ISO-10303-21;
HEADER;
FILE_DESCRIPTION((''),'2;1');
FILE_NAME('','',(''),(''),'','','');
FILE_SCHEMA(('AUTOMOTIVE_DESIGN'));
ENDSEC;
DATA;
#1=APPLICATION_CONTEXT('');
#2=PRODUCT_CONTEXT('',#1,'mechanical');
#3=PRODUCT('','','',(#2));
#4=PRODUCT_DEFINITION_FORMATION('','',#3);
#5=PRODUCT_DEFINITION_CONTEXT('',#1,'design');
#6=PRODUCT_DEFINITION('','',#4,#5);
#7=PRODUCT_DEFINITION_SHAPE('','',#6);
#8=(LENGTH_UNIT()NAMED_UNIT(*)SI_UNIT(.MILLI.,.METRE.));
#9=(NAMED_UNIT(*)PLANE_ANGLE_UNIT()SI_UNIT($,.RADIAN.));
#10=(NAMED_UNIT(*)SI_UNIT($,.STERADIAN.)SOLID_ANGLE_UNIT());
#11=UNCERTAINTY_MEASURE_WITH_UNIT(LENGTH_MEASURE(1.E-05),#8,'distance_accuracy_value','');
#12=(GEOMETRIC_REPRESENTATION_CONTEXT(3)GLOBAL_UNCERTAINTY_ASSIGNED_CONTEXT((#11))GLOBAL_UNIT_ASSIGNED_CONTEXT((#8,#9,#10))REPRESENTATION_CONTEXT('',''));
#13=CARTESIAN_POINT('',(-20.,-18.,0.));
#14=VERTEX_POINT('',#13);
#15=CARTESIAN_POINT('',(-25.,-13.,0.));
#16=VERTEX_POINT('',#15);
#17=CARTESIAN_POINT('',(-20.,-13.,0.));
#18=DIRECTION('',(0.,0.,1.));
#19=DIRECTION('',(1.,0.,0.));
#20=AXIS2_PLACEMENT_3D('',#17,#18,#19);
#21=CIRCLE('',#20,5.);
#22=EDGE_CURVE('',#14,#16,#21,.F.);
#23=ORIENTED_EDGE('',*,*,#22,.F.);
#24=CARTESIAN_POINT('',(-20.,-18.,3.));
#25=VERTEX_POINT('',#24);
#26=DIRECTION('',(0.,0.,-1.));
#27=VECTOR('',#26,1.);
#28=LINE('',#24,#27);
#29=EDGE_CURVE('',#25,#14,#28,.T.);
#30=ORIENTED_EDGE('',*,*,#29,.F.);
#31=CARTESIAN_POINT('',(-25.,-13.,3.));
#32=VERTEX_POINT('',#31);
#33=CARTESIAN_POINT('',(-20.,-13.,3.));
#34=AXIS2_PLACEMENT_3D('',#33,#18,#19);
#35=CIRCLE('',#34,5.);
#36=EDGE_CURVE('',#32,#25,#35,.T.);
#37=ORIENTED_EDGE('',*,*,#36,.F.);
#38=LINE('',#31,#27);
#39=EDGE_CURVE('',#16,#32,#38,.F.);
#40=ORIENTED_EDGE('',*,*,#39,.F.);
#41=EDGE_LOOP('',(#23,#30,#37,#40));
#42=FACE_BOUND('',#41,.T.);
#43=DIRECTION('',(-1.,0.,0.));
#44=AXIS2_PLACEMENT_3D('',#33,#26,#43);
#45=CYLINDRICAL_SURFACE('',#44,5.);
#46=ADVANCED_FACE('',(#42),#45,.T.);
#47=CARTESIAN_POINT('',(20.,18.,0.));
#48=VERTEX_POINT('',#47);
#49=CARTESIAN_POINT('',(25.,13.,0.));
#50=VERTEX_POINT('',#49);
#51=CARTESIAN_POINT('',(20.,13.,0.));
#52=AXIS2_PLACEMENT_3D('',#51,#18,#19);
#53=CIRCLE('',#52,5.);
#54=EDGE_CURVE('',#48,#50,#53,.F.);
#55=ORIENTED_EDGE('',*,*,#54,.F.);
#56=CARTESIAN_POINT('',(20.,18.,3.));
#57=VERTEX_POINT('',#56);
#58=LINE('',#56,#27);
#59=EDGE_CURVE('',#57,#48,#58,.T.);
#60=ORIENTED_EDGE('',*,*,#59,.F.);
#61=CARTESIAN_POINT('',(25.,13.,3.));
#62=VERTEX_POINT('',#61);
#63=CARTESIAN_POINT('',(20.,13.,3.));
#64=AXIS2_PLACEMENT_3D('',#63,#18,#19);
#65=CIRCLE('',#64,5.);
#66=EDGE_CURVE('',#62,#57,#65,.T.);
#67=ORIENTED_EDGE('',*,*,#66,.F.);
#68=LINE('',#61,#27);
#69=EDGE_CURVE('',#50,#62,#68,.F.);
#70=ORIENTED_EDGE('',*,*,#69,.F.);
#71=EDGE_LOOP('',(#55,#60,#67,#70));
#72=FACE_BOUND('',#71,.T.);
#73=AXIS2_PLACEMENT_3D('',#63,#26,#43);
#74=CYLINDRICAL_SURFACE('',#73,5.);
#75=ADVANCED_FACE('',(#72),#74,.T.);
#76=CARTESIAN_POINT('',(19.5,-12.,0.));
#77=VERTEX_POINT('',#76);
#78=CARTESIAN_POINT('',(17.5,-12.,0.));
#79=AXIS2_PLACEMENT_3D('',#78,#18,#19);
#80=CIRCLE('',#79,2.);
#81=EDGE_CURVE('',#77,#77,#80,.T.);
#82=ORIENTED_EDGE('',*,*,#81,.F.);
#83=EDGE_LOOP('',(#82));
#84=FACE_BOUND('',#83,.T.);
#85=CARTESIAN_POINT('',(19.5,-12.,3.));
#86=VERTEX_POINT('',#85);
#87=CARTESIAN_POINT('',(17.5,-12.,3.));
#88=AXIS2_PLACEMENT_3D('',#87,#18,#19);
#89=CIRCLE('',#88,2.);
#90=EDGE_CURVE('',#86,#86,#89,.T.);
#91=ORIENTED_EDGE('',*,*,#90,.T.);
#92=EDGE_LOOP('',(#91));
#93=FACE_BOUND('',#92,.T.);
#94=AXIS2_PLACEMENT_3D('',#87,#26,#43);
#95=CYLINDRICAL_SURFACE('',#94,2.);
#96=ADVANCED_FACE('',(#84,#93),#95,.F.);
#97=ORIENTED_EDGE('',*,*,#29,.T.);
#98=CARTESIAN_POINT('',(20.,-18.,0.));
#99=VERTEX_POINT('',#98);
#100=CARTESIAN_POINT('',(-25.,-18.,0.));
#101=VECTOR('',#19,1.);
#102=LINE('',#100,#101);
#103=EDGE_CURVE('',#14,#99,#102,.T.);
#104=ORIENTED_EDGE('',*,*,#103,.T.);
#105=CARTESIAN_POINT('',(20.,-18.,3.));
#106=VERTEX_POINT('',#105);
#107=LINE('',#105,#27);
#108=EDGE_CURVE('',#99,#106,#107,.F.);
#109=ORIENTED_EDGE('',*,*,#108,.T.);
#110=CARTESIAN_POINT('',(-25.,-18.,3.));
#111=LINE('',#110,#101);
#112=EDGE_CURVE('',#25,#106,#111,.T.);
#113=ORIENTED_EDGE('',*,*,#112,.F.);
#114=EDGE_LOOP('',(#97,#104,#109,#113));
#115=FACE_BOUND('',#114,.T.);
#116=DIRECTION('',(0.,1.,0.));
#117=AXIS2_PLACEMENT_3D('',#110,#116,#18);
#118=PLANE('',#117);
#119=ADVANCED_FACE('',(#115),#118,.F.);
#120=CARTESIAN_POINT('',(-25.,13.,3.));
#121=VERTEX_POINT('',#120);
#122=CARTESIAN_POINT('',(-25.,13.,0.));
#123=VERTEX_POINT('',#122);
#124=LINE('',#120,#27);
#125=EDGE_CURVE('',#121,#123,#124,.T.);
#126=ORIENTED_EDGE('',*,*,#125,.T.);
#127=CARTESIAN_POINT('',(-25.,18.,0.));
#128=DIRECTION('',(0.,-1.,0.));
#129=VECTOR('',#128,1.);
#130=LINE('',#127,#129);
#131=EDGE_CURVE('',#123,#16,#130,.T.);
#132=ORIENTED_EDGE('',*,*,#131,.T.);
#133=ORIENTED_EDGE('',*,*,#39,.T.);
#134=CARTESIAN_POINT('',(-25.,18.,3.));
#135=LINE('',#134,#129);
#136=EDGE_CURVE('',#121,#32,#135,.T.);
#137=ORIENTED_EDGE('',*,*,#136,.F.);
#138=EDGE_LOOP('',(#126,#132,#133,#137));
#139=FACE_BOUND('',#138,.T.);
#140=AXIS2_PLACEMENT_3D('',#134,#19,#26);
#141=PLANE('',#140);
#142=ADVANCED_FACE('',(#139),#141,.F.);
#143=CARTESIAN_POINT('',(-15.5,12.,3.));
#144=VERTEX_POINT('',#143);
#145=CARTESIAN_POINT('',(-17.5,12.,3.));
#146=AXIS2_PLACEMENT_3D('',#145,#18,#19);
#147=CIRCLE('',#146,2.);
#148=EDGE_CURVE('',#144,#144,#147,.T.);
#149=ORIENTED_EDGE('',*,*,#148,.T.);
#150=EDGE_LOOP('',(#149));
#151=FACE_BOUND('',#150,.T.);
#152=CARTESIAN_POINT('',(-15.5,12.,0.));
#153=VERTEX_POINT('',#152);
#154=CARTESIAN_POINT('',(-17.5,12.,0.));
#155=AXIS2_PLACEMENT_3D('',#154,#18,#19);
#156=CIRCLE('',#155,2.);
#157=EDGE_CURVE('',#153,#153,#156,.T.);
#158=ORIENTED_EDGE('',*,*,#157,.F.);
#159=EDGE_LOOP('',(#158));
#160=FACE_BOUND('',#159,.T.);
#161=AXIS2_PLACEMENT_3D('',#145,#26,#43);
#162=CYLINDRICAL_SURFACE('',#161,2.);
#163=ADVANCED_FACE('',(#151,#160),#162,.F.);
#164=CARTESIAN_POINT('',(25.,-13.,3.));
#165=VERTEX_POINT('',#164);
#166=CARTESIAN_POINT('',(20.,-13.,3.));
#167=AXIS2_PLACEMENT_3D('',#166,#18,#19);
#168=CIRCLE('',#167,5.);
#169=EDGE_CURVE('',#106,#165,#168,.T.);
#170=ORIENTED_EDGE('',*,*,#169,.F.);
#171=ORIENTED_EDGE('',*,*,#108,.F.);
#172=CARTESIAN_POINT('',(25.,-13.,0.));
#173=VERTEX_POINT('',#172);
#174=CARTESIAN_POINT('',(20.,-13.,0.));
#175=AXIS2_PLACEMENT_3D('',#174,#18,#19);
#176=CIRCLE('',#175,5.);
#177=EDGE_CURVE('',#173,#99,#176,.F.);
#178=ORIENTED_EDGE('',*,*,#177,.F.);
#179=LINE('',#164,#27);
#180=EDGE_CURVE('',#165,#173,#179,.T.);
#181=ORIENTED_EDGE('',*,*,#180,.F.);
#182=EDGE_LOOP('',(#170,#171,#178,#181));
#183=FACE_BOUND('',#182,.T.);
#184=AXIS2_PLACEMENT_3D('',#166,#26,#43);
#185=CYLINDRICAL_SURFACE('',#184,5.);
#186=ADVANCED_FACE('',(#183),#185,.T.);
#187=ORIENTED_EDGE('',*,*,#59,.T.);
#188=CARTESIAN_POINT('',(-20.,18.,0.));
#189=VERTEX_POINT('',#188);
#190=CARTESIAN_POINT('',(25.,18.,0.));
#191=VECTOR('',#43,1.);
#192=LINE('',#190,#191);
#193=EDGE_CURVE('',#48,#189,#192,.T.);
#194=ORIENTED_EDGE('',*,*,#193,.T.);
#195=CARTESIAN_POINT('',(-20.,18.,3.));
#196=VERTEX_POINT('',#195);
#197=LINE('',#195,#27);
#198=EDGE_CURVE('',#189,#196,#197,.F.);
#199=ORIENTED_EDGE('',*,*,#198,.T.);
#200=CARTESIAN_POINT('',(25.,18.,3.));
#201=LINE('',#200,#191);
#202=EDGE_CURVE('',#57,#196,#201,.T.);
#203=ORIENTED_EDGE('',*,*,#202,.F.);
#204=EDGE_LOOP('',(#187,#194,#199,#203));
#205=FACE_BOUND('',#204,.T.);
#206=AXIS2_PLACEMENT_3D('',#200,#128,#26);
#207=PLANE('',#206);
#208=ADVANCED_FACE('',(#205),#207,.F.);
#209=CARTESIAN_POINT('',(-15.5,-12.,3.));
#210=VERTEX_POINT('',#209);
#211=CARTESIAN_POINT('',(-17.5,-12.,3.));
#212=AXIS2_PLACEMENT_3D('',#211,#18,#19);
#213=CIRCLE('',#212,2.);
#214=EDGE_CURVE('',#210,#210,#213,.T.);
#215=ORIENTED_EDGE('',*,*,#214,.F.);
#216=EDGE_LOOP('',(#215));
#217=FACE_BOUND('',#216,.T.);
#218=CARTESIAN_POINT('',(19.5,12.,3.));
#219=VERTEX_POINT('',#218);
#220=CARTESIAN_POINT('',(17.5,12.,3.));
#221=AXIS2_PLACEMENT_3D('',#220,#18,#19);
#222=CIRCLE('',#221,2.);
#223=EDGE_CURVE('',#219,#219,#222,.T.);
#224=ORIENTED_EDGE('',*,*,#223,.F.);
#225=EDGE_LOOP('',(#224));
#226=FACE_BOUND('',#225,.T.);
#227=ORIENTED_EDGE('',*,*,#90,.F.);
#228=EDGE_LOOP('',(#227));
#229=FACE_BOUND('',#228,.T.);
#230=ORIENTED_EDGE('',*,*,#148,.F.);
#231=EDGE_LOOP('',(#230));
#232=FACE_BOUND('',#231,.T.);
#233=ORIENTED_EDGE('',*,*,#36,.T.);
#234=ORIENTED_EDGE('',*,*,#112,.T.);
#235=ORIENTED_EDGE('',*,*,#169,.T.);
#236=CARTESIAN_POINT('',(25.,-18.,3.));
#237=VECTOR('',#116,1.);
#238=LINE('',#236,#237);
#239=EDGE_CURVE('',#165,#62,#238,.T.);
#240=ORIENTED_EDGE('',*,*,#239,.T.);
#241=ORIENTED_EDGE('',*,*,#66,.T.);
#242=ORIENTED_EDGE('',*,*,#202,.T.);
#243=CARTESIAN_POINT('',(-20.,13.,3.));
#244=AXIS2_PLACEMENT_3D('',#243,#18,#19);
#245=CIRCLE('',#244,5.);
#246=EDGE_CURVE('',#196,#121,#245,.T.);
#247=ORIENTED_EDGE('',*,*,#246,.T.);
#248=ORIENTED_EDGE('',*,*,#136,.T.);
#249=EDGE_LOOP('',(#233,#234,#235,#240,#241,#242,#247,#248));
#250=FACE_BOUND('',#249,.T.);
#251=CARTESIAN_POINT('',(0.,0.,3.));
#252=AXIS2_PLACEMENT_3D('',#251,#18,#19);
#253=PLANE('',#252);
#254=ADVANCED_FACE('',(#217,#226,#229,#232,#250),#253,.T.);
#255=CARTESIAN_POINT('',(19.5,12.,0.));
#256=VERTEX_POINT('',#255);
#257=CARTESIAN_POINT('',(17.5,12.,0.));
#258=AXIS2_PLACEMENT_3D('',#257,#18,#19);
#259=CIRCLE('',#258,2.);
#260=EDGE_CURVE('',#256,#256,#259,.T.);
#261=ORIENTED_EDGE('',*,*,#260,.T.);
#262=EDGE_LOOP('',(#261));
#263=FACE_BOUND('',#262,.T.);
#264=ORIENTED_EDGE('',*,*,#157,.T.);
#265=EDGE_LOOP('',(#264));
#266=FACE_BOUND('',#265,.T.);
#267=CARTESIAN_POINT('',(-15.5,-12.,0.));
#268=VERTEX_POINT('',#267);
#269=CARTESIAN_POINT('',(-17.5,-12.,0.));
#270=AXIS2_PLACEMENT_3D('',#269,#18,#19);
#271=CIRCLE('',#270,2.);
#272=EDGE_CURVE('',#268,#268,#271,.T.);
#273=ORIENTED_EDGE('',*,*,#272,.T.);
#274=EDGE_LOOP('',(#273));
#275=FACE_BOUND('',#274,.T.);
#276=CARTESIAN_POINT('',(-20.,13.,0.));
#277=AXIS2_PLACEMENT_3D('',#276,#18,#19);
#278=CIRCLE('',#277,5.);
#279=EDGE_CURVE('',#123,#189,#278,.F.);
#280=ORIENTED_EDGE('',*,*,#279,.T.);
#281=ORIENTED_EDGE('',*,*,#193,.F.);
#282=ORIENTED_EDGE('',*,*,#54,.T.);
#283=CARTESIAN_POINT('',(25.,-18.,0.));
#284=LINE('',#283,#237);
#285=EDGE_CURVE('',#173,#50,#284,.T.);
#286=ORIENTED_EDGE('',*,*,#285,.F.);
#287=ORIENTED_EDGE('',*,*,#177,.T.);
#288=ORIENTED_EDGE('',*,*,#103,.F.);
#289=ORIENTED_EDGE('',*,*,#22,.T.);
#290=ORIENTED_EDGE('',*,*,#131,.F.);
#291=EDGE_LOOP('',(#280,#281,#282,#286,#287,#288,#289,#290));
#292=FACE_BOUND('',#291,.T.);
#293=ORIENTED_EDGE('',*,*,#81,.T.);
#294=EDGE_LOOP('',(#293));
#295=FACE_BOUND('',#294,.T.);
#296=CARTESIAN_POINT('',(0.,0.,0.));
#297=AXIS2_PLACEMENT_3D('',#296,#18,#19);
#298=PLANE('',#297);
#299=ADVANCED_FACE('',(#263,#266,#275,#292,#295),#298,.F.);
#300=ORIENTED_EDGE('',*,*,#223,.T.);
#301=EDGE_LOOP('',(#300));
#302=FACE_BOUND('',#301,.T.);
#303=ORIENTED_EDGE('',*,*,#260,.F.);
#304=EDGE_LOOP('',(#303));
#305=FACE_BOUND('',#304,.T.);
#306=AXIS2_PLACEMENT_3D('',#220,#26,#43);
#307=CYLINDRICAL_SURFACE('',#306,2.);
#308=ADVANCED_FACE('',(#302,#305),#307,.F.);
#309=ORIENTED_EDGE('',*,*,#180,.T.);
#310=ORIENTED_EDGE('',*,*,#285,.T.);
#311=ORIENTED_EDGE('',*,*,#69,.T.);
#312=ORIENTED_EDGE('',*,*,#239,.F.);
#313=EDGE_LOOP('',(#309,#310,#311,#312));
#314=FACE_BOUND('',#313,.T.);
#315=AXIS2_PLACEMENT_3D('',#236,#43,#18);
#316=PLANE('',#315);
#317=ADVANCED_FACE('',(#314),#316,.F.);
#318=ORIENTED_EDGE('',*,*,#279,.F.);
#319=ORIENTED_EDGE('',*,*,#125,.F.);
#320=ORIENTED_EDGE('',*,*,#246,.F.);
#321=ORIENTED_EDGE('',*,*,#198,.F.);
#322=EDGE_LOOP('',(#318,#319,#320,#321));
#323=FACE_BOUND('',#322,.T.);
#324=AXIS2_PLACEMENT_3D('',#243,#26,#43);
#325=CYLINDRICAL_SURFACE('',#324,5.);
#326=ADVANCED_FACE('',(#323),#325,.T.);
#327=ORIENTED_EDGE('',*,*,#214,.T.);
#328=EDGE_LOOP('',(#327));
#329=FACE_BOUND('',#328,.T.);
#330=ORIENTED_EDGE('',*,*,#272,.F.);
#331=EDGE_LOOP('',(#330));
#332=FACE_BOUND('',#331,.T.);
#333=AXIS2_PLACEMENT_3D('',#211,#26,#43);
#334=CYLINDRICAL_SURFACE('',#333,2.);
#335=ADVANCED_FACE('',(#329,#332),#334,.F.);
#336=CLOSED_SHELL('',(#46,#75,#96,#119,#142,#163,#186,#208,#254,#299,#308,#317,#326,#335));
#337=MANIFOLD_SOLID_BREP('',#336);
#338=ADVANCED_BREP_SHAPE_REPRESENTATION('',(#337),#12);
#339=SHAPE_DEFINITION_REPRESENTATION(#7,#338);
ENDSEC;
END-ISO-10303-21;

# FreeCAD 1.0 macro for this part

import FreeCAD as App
import Part
import Sketcher

V = App.Vector
Q = App.Units.Quantity


def edges_at(feature, points):
    """Names of the edges that pass closest to the given points."""
    edges = feature.Shape.Edges
    near = lambda p: min(range(len(edges)), key=lambda i: edges[i].distToShape(Part.Vertex(*p))[0])
    return sorted({f"Edge{near(p) + 1}" for p in points})


def add_polygon(sketch, points):
    """Adds a closed chain of lines whose ends are joined by coincident constraints."""
    first, n = sketch.GeometryCount, len(points)
    for a, b in zip(points, points[1:] + points[:1]):
        sketch.addGeometry(Part.LineSegment(App.Vector(*a, 0), App.Vector(*b, 0)), False)
    for i in range(n):
        sketch.addConstraint(Sketcher.Constraint("Coincident", first + i, 2, first + (i + 1) % n, 1))

doc = App.newDocument("Part")
body = doc.addObject("PartDesign::Body", "Body")

# Sketch on XY plane
sketch1 = doc.addObject("Sketcher::SketchObject", "Sketch")
body.addObject(sketch1)
sketch1.AttachmentSupport = (doc.XY_Plane, [""])
sketch1.MapMode = "FlatFace"
add_polygon(sketch1, [(-25, 18), (-25, -18), (25, -18), (25, 18)])  # lines 0-3
sketch1.addGeometry(Part.Circle(V(-17.5, -12, 0), V(0, 0, 1), 2), False)  # 4
sketch1.addGeometry(Part.Circle(V(17.5, -12, 0), V(0, 0, 1), 2), False)  # 5
sketch1.addGeometry(Part.Circle(V(-17.5, 12, 0), V(0, 0, 1), 2), False)  # 6
sketch1.addGeometry(Part.Circle(V(17.5, 12, 0), V(0, 0, 1), 2), False)  # 7
sketch1.addConstraint(Sketcher.Constraint("Vertical", 0))
sketch1.addConstraint(Sketcher.Constraint("Horizontal", 1))
sketch1.addConstraint(Sketcher.Constraint("Vertical", 2))
sketch1.addConstraint(Sketcher.Constraint("Horizontal", 3))
sketch1.addConstraint(Sketcher.Constraint("Equal", 4, 5))
sketch1.addConstraint(Sketcher.Constraint("Equal", 5, 6))
sketch1.addConstraint(Sketcher.Constraint("Equal", 6, 7))
sketch1.addConstraint(Sketcher.Constraint("Symmetric", 5, 3, 6, 3, -1, 1))
sketch1.addConstraint(Sketcher.Constraint("Symmetric", 4, 3, 7, 3, -1, 1))
sketch1.addConstraint(Sketcher.Constraint("Symmetric", 0, 2, 2, 2, -1, 1))
sketch1.addConstraint(Sketcher.Constraint("Symmetric", 4, 3, 5, 3, -2))
sketch1.addConstraint(Sketcher.Constraint("Diameter", 4, Q("4 mm")))
sketch1.addConstraint(Sketcher.Constraint("DistanceX", 1, 1, 1, 2, Q("50 mm")))
sketch1.addConstraint(Sketcher.Constraint("DistanceY", 0, 2, 0, 1, Q("36 mm")))
sketch1.addConstraint(Sketcher.Constraint("DistanceY", 4, 3, -1, 1, Q("12 mm")))
sketch1.addConstraint(Sketcher.Constraint("DistanceX", 4, 3, 5, 3, Q("35 mm")))
pad1 = doc.addObject("PartDesign::Pad", "Pad")
body.addObject(pad1)
pad1.Profile = sketch1
pad1.Length = 3
doc.recompute()

fillet = doc.addObject("PartDesign::Fillet", "Fillet")
body.addObject(fillet)
fillet.Base = (pad1, edges_at(pad1, [
    (25, -18, 1.5),
    (-25, -18, 1.5),
    (-25, 18, 1.5),
    (25, 18, 1.5),
]))
fillet.Radius = 5

doc.recompute()
